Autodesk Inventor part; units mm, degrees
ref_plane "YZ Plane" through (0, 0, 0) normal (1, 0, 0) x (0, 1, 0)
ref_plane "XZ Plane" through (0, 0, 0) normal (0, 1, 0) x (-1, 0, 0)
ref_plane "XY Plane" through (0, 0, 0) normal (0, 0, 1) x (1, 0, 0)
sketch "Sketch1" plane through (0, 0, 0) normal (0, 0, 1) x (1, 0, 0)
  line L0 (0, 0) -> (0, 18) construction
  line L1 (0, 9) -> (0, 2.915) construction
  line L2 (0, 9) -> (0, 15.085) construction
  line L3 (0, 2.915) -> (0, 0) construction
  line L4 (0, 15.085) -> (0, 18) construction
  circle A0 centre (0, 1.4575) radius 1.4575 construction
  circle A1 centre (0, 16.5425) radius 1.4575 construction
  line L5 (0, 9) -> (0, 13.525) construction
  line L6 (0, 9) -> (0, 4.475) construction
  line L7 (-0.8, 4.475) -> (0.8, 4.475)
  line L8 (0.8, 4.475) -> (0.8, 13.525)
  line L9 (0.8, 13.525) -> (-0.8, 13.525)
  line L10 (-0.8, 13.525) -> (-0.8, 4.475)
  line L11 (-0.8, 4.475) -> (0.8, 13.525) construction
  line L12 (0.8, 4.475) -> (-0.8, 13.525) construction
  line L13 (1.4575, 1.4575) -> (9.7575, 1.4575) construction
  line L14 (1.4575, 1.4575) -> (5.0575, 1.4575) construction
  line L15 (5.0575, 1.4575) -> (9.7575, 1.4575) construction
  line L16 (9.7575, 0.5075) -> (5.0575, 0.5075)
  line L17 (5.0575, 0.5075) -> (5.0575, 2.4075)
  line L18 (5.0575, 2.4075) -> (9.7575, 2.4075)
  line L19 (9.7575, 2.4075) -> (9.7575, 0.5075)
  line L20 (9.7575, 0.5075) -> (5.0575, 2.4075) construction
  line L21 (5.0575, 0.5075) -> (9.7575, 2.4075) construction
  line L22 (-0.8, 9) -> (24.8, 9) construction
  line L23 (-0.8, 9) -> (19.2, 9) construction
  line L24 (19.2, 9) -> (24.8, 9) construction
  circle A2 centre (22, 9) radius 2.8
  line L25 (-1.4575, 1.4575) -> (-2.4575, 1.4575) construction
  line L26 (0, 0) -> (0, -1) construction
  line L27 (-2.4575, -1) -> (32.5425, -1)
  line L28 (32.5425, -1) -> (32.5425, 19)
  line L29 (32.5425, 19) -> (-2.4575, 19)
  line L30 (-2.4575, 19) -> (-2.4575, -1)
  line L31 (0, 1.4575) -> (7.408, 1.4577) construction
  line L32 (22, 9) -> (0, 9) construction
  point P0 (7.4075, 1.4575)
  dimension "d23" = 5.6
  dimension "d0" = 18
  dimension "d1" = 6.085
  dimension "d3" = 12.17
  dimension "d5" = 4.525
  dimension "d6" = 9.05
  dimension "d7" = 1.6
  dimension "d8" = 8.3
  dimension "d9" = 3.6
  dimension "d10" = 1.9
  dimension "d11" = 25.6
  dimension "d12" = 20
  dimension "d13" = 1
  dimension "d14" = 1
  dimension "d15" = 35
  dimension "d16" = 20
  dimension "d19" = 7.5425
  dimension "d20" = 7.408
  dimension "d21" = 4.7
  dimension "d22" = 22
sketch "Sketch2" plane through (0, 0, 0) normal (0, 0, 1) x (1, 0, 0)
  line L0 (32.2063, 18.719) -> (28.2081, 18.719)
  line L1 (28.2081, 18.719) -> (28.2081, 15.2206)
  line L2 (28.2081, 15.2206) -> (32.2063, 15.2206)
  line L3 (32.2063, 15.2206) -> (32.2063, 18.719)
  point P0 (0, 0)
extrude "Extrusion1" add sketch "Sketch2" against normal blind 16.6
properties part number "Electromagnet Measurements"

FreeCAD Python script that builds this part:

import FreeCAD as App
import Part
import Sketcher
from FreeCAD import Vector
Q = App.Units.Quantity

doc = App.newDocument("Part")
body = doc.addObject("PartDesign::Body", "Body")

sketch1 = body.newObject("Sketcher::SketchObject", "Sketch")
sketch1.AttachmentSupport = (doc.getObject("XY_Plane"), [""])
sketch1.MapMode = "FlatFace"
sketch1.addGeometry(Part.LineSegment(Vector(32.2063, 15.2206, 0), Vector(32.2063, 18.719, 0)), False)
sketch1.addGeometry(Part.LineSegment(Vector(32.2063, 18.719, 0), Vector(28.2081, 18.719, 0)), False)
sketch1.addGeometry(Part.LineSegment(Vector(28.2081, 18.719, 0), Vector(28.2081, 15.2206, 0)), False)
sketch1.addGeometry(Part.LineSegment(Vector(28.2081, 15.2206, 0), Vector(32.2063, 15.2206, 0)), False)
sketch1.addConstraint(Sketcher.Constraint("Coincident", 0, 2, 1, 1))
sketch1.addConstraint(Sketcher.Constraint("Coincident", 1, 2, 2, 1))
sketch1.addConstraint(Sketcher.Constraint("Coincident", 2, 2, 3, 1))
sketch1.addConstraint(Sketcher.Constraint("Coincident", 3, 2, 0, 1))
sketch1.addConstraint(Sketcher.Constraint("Vertical", 0))
sketch1.addConstraint(Sketcher.Constraint("Horizontal", 1))
sketch1.addConstraint(Sketcher.Constraint("Vertical", 2))
sketch1.addConstraint(Sketcher.Constraint("Horizontal", 3))
sketch1.addConstraint(Sketcher.Constraint("DistanceX", 1, 2, 1, 1, Q("3.9982 mm")))
sketch1.addConstraint(Sketcher.Constraint("DistanceY", 0, 1, 0, 2, Q("3.4984 mm")))
sketch1.addConstraint(Sketcher.Constraint("DistanceY", -1, 1, 0, 2, Q("18.719 mm")))
sketch1.addConstraint(Sketcher.Constraint("DistanceX", -1, 1, 1, 2, Q("28.208 mm")))
pad1 = body.newObject("PartDesign::Pad", "Pad")
pad1.Profile = sketch1
pad1.Length = 16.6
pad1.Reversed = True

doc.recompute()
